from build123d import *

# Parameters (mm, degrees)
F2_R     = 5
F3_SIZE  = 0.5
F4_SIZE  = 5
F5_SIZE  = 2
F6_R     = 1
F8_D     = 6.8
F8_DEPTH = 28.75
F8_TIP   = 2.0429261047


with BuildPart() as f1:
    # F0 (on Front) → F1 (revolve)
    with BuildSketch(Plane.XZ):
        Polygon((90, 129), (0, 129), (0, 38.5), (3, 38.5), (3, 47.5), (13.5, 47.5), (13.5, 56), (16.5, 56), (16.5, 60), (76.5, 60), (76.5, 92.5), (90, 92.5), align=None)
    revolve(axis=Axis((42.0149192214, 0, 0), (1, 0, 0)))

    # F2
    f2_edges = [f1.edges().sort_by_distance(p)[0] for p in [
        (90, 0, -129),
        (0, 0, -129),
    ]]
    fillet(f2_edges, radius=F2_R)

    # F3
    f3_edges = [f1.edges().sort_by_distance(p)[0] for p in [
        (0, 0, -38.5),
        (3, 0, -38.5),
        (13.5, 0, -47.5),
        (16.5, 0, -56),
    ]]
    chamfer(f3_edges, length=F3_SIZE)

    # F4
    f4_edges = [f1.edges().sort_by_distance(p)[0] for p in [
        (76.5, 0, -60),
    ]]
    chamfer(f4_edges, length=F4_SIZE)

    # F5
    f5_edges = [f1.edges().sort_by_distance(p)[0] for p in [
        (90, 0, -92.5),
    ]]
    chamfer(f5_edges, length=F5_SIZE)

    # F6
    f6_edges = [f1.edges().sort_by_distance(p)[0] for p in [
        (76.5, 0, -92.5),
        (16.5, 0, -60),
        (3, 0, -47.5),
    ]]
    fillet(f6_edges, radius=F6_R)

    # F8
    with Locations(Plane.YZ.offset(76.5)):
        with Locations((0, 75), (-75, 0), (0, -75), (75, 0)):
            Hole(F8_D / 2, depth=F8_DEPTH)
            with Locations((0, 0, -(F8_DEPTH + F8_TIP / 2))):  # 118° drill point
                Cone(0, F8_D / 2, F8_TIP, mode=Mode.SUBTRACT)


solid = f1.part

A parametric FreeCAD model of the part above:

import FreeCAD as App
import Part
import Sketcher

V = App.Vector
Q = App.Units.Quantity


def edges_at(feature, points):
    """Names of the edges that pass closest to the given points."""
    edges = feature.Shape.Edges
    near = lambda p: min(range(len(edges)), key=lambda i: edges[i].distToShape(Part.Vertex(*p))[0])
    return sorted({f"Edge{near(p) + 1}" for p in points})


def add_polygon(sketch, points):
    """Adds a closed chain of lines whose ends are joined by coincident constraints."""
    first, n = sketch.GeometryCount, len(points)
    for a, b in zip(points, points[1:] + points[:1]):
        sketch.addGeometry(Part.LineSegment(App.Vector(*a, 0), App.Vector(*b, 0)), False)
    for i in range(n):
        sketch.addConstraint(Sketcher.Constraint("Coincident", first + i, 2, first + (i + 1) % n, 1))

doc = App.newDocument("Part")
body = doc.addObject("PartDesign::Body", "Body")

sketch1 = body.newObject("Sketcher::SketchObject", "Sketch")
sketch1.AttachmentSupport = (doc.getObject("XZ_Plane"), [""])
sketch1.MapMode = "FlatFace"
add_polygon(sketch1, [(90, 129), (0, 129), (0, 38.5), (3, 38.5), (3, 47.5), (13.5, 47.5), (13.5, 56), (16.5, 56), (16.5, 60), (76.5, 60), (76.5, 92.5), (90, 92.5)])
sketch1.addConstraint(Sketcher.Constraint("Horizontal", 0))
sketch1.addConstraint(Sketcher.Constraint("Vertical", 1))
sketch1.addConstraint(Sketcher.Constraint("Horizontal", 2))
sketch1.addConstraint(Sketcher.Constraint("Vertical", 3))
sketch1.addConstraint(Sketcher.Constraint("Horizontal", 4))
sketch1.addConstraint(Sketcher.Constraint("Vertical", 5))
sketch1.addConstraint(Sketcher.Constraint("Horizontal", 6))
sketch1.addConstraint(Sketcher.Constraint("Vertical", 7))
sketch1.addConstraint(Sketcher.Constraint("Horizontal", 8))
sketch1.addConstraint(Sketcher.Constraint("Vertical", 9))
sketch1.addConstraint(Sketcher.Constraint("Horizontal", 10))
sketch1.addConstraint(Sketcher.Constraint("Vertical", 11))
sketch1.addConstraint(Sketcher.Constraint("PointOnObject", 0, 2, -2))
sketch1.addConstraint(Sketcher.Constraint("Equal", 2, 6))
sketch1.addConstraint(Sketcher.Constraint("DistanceX", 0, 2, 0, 1, Q("90 mm")))
sketch1.addConstraint(Sketcher.Constraint("DistanceX", 2, 1, 2, 2, Q("3 mm")))
sketch1.addConstraint(Sketcher.Constraint("DistanceX", 8, 1, 8, 2, Q("60 mm")))
sketch1.addConstraint(Sketcher.Constraint("DistanceY", 3, 1, 3, 2, Q("9 mm")))
sketch1.addConstraint(Sketcher.Constraint("DistanceY", 7, 1, 7, 2, Q("4 mm")))
sketch1.addConstraint(Sketcher.Constraint("DistanceX", 4, 1, 4, 2, Q("10.5 mm")))
sketch1.addConstraint(Sketcher.Constraint("DistanceY", 1, 2, 1, 1, Q("90.5 mm")))
sketch1.addConstraint(Sketcher.Constraint("DistanceY", 5, 1, 5, 2, Q("8.5 mm")))
sketch1.addConstraint(Sketcher.Constraint("DistanceY", 9, 1, 9, 2, Q("32.5 mm")))
sketch1.addConstraint(Sketcher.Constraint("DistanceY", -1, 1, 0, 2, Q("129 mm")))
revolution = body.newObject("PartDesign::Revolution", "Revolution")
revolution.Profile = sketch1
revolution.ReferenceAxis = (sketch1, ["H_Axis"])
revolution.Angle = 360
doc.recompute()

fillet = body.newObject("PartDesign::Fillet", "Fillet")
fillet.Base = (revolution, edges_at(revolution, [(90, 0, -129), (0, 0, -129)]))
fillet.Radius = 5
doc.recompute()

chamfer = body.newObject("PartDesign::Chamfer", "Chamfer")
chamfer.Base = (fillet, edges_at(fillet, [
    (0, 0, -38.5),
    (3, 0, -38.5),
    (13.5, 0, -47.5),
    (16.5, 0, -56),
]))
chamfer.Size = 0.5
doc.recompute()

chamfer2 = body.newObject("PartDesign::Chamfer", "Chamfer001")
chamfer2.Base = (chamfer, edges_at(chamfer, [(76.5, 0, -60)]))
chamfer2.Size = 5
doc.recompute()

chamfer3 = body.newObject("PartDesign::Chamfer", "Chamfer002")
chamfer3.Base = (chamfer2, edges_at(chamfer2, [(90, 0, -92.5)]))
chamfer3.Size = 2
doc.recompute()

fillet2 = body.newObject("PartDesign::Fillet", "Fillet001")
fillet2.Base = (chamfer3, edges_at(chamfer3, [(76.5, 0, -92.5), (16.5, 0, -60), (3, 0, -47.5)]))
fillet2.Radius = 1

sketch2 = body.newObject("Sketcher::SketchObject", "Sketch001")
sketch2.AttachmentSupport = (doc.getObject("YZ_Plane"), [""])
sketch2.MapMode = "FlatFace"
sketch2.AttachmentOffset = App.Placement(V(0, 0, 76.5), App.Rotation())
sketch2.addGeometry(Part.Circle(V(0, 75, 0), V(0, 0, 1), 3.4), False)
sketch2.addGeometry(Part.Circle(V(-75, 0, 0), V(0, 0, 1), 3.4), False)
sketch2.addGeometry(Part.Circle(V(0, -75, 0), V(0, 0, 1), 3.4), False)
sketch2.addGeometry(Part.Circle(V(75, 0, 0), V(0, 0, 1), 3.4), False)
sketch2.addConstraint(Sketcher.Constraint("Equal", 0, 1))
sketch2.addConstraint(Sketcher.Constraint("Equal", 1, 2))
sketch2.addConstraint(Sketcher.Constraint("Equal", 2, 3))
sketch2.addConstraint(Sketcher.Constraint("Symmetric", 0, 3, 2, 3, -1, 1))
sketch2.addConstraint(Sketcher.Constraint("Symmetric", 1, 3, 3, 3, -1, 1))
sketch2.addConstraint(Sketcher.Constraint("PointOnObject", 0, 3, -2))
sketch2.addConstraint(Sketcher.Constraint("PointOnObject", 1, 3, -1))
sketch2.addConstraint(Sketcher.Constraint("Diameter", 0, Q("6.8 mm")))
sketch2.addConstraint(Sketcher.Constraint("DistanceY", -1, 1, 0, 3, Q("75 mm")))
sketch2.addConstraint(Sketcher.Constraint("DistanceX", 1, 3, -1, 1, Q("75 mm")))
doc.recompute()
hole = body.newObject("PartDesign::Hole", "Hole")
hole.Profile = sketch2
hole.ThreadType = "None"
hole.Diameter = 6.8
hole.DepthType = "Dimension"
hole.Depth = 28.75
hole.DrillPoint = "Angled"
hole.DrillPointAngle = 118

doc.recompute()
